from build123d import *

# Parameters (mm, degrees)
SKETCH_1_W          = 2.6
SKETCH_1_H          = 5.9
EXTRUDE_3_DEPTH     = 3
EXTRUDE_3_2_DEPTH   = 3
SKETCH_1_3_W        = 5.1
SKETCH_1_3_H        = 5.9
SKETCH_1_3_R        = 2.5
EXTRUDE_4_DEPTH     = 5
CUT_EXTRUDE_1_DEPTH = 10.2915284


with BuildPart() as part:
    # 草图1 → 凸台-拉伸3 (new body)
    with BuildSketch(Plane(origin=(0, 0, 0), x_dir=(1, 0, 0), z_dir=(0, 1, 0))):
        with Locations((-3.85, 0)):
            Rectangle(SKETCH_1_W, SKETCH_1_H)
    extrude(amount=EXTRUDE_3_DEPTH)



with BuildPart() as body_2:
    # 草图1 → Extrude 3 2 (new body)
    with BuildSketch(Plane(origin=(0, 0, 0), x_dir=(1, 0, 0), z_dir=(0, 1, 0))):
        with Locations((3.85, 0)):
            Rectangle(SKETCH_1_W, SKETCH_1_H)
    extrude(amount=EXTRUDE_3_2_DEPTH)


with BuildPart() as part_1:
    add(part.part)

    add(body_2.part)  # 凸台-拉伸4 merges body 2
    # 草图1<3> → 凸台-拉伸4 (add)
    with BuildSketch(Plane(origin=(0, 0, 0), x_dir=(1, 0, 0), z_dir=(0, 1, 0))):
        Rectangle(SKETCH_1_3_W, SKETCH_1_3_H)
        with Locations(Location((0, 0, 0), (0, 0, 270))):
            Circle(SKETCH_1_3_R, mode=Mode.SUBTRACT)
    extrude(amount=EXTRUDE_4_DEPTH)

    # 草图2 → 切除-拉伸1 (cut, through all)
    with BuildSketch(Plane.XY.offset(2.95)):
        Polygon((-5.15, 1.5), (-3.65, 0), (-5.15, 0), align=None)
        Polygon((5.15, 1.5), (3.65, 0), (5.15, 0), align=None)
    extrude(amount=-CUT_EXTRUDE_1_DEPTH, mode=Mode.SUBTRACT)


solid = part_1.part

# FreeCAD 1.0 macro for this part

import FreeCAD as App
import Part
import Sketcher
Q = App.Units.Quantity

doc = App.newDocument("Part")
body = doc.addObject("PartDesign::Body", "Body")

# Sketch on XZ plane
sketch1 = body.newObject("Sketcher::SketchObject", "Sketch")
sketch1.AttachmentSupport = (doc.getObject("XZ_Plane"), [""])
sketch1.MapMode = "FlatFace"
sketch1.addGeometry(Part.LineSegment(App.Vector(-5.15, -2.95, 0), App.Vector(-5.15, 2.95, 0)), False)
sketch1.addGeometry(Part.LineSegment(App.Vector(-5.15, 2.95, 0), App.Vector(-2.55, 2.95, 0)), False)
sketch1.addGeometry(Part.LineSegment(App.Vector(-2.55, 2.95, 0), App.Vector(-2.55, -2.95, 0)), False)
sketch1.addGeometry(Part.LineSegment(App.Vector(-2.55, -2.95, 0), App.Vector(-5.15, -2.95, 0)), False)
sketch1.addConstraint(Sketcher.Constraint("Coincident", 0, 2, 1, 1))
sketch1.addConstraint(Sketcher.Constraint("Coincident", 1, 2, 2, 1))
sketch1.addConstraint(Sketcher.Constraint("Coincident", 2, 2, 3, 1))
sketch1.addConstraint(Sketcher.Constraint("Coincident", 3, 2, 0, 1))
sketch1.addConstraint(Sketcher.Constraint("Vertical", 0))
sketch1.addConstraint(Sketcher.Constraint("Horizontal", 1))
sketch1.addConstraint(Sketcher.Constraint("Vertical", 2))
sketch1.addConstraint(Sketcher.Constraint("Horizontal", 3))
sketch1.addConstraint(Sketcher.Constraint("DistanceX", 1, 1, 1, 2, Q("2.6 mm")))
sketch1.addConstraint(Sketcher.Constraint("DistanceY", 0, 1, 0, 2, Q("5.9 mm")))
sketch1.addConstraint(Sketcher.Constraint("DistanceX", 0, 2, -1, 1, Q("5.15 mm")))
sketch1.addConstraint(Sketcher.Constraint("DistanceY", -1, 1, 0, 2, Q("2.95 mm")))
pad1 = body.newObject("PartDesign::Pad", "Pad")
pad1.Profile = sketch1
pad1.Length = 3
pad1.Reversed = True
body2 = doc.addObject("PartDesign::Body", "Body001")

# Sketch on XZ plane
sketch2 = body2.newObject("Sketcher::SketchObject", "Sketch001")
sketch2.AttachmentSupport = (doc.getObject("XZ_Plane001"), [""])
sketch2.MapMode = "FlatFace"
sketch2.addGeometry(Part.LineSegment(App.Vector(2.55, -2.95, 0), App.Vector(2.55, 2.95, 0)), False)
sketch2.addGeometry(Part.LineSegment(App.Vector(2.55, 2.95, 0), App.Vector(5.15, 2.95, 0)), False)
sketch2.addGeometry(Part.LineSegment(App.Vector(5.15, 2.95, 0), App.Vector(5.15, -2.95, 0)), False)
sketch2.addGeometry(Part.LineSegment(App.Vector(5.15, -2.95, 0), App.Vector(2.55, -2.95, 0)), False)
sketch2.addConstraint(Sketcher.Constraint("Coincident", 0, 2, 1, 1))
sketch2.addConstraint(Sketcher.Constraint("Coincident", 1, 2, 2, 1))
sketch2.addConstraint(Sketcher.Constraint("Coincident", 2, 2, 3, 1))
sketch2.addConstraint(Sketcher.Constraint("Coincident", 3, 2, 0, 1))
sketch2.addConstraint(Sketcher.Constraint("Vertical", 0))
sketch2.addConstraint(Sketcher.Constraint("Horizontal", 1))
sketch2.addConstraint(Sketcher.Constraint("Vertical", 2))
sketch2.addConstraint(Sketcher.Constraint("Horizontal", 3))
sketch2.addConstraint(Sketcher.Constraint("DistanceX", 1, 1, 1, 2, Q("2.6 mm")))
sketch2.addConstraint(Sketcher.Constraint("DistanceY", 0, 1, 0, 2, Q("5.9 mm")))
sketch2.addConstraint(Sketcher.Constraint("DistanceX", -1, 1, 0, 2, Q("2.55 mm")))
sketch2.addConstraint(Sketcher.Constraint("DistanceY", -1, 1, 0, 2, Q("2.95 mm")))
pad2 = body2.newObject("PartDesign::Pad", "Pad001")
pad2.Profile = sketch2
pad2.Length = 3
pad2.Reversed = True
body.AllowCompound = True
doc.recompute()

boolean = body.newObject("PartDesign::Boolean", "Boolean")
boolean.Type = "Fuse"
boolean.addObjects([body2])

# Sketch on XZ plane
sketch3 = body.newObject("Sketcher::SketchObject", "Sketch002")
sketch3.AttachmentSupport = (doc.getObject("XZ_Plane"), [""])
sketch3.MapMode = "FlatFace"
sketch3.addGeometry(Part.LineSegment(App.Vector(-2.55, -2.95, 0), App.Vector(-2.55, 2.95, 0)), False)
sketch3.addGeometry(Part.LineSegment(App.Vector(-2.55, 2.95, 0), App.Vector(2.55, 2.95, 0)), False)
sketch3.addGeometry(Part.LineSegment(App.Vector(2.55, 2.95, 0), App.Vector(2.55, -2.95, 0)), False)
sketch3.addGeometry(Part.LineSegment(App.Vector(2.55, -2.95, 0), App.Vector(-2.55, -2.95, 0)), False)
sketch3.addGeometry(Part.Circle(App.Vector(0, 0, 0), App.Vector(0, 0, 1), 2.5), False)
sketch3.addConstraint(Sketcher.Constraint("Coincident", 0, 2, 1, 1))
sketch3.addConstraint(Sketcher.Constraint("Coincident", 1, 2, 2, 1))
sketch3.addConstraint(Sketcher.Constraint("Coincident", 2, 2, 3, 1))
sketch3.addConstraint(Sketcher.Constraint("Coincident", 3, 2, 0, 1))
sketch3.addConstraint(Sketcher.Constraint("Vertical", 0))
sketch3.addConstraint(Sketcher.Constraint("Horizontal", 1))
sketch3.addConstraint(Sketcher.Constraint("Vertical", 2))
sketch3.addConstraint(Sketcher.Constraint("Horizontal", 3))
sketch3.addConstraint(Sketcher.Constraint("Coincident", 4, 3, -1, 1))
sketch3.addConstraint(Sketcher.Constraint("Symmetric", 0, 2, 2, 2, -1, 1))
sketch3.addConstraint(Sketcher.Constraint("Diameter", 4, Q("5 mm")))
sketch3.addConstraint(Sketcher.Constraint("DistanceX", 1, 1, 1, 2, Q("5.1 mm")))
sketch3.addConstraint(Sketcher.Constraint("DistanceY", 0, 1, 0, 2, Q("5.9 mm")))
pad3 = body.newObject("PartDesign::Pad", "Pad002")
pad3.Profile = sketch3
pad3.Length = 5
pad3.Reversed = True

# Sketch on XY plane
sketch4 = body.newObject("Sketcher::SketchObject", "Sketch003")
sketch4.AttachmentSupport = (doc.getObject("XY_Plane"), [""])
sketch4.MapMode = "FlatFace"
sketch4.AttachmentOffset = App.Placement(App.Vector(0, 0, 2.95), App.Rotation())
sketch4.addGeometry(Part.LineSegment(App.Vector(-3.65, 0, 0), App.Vector(-5.15, 1.5, 0)), False)
sketch4.addGeometry(Part.LineSegment(App.Vector(-5.15, 1.5, 0), App.Vector(-5.15, 0, 0)), False)
sketch4.addGeometry(Part.LineSegment(App.Vector(-5.15, 0, 0), App.Vector(-3.65, 0, 0)), False)
sketch4.addGeometry(Part.LineSegment(App.Vector(5.15, 1.5, 0), App.Vector(3.65, 0, 0)), False)
sketch4.addGeometry(Part.LineSegment(App.Vector(3.65, 0, 0), App.Vector(5.15, 0, 0)), False)
sketch4.addGeometry(Part.LineSegment(App.Vector(5.15, 0, 0), App.Vector(5.15, 1.5, 0)), False)
sketch4.addConstraint(Sketcher.Constraint("Coincident", 0, 2, 1, 1))
sketch4.addConstraint(Sketcher.Constraint("Coincident", 1, 2, 2, 1))
sketch4.addConstraint(Sketcher.Constraint("Coincident", 2, 2, 0, 1))
sketch4.addConstraint(Sketcher.Constraint("Coincident", 3, 2, 4, 1))
sketch4.addConstraint(Sketcher.Constraint("Coincident", 4, 2, 5, 1))
sketch4.addConstraint(Sketcher.Constraint("Coincident", 5, 2, 3, 1))
sketch4.addConstraint(Sketcher.Constraint("Vertical", 1))
sketch4.addConstraint(Sketcher.Constraint("Horizontal", 2))
sketch4.addConstraint(Sketcher.Constraint("Horizontal", 4))
sketch4.addConstraint(Sketcher.Constraint("Vertical", 5))
sketch4.addConstraint(Sketcher.Constraint("Symmetric", 2, 2, 3, 2, -1, 1))
sketch4.addConstraint(Sketcher.Constraint("Symmetric", 1, 2, 4, 2, -2))
sketch4.addConstraint(Sketcher.Constraint("Perpendicular", 0, 3))
sketch4.addConstraint(Sketcher.Constraint("Horizontal", 0, 2, 5, 2))
sketch4.addConstraint(Sketcher.Constraint("DistanceX", 2, 1, 2, 2, Q("1.5 mm")))
sketch4.addConstraint(Sketcher.Constraint("DistanceX", 2, 2, 3, 2, Q("7.3 mm")))
pocket1 = body.newObject("PartDesign::Pocket", "Pocket")
pocket1.Profile = sketch4
pocket1.Type = "ThroughAll"

doc.recompute()
